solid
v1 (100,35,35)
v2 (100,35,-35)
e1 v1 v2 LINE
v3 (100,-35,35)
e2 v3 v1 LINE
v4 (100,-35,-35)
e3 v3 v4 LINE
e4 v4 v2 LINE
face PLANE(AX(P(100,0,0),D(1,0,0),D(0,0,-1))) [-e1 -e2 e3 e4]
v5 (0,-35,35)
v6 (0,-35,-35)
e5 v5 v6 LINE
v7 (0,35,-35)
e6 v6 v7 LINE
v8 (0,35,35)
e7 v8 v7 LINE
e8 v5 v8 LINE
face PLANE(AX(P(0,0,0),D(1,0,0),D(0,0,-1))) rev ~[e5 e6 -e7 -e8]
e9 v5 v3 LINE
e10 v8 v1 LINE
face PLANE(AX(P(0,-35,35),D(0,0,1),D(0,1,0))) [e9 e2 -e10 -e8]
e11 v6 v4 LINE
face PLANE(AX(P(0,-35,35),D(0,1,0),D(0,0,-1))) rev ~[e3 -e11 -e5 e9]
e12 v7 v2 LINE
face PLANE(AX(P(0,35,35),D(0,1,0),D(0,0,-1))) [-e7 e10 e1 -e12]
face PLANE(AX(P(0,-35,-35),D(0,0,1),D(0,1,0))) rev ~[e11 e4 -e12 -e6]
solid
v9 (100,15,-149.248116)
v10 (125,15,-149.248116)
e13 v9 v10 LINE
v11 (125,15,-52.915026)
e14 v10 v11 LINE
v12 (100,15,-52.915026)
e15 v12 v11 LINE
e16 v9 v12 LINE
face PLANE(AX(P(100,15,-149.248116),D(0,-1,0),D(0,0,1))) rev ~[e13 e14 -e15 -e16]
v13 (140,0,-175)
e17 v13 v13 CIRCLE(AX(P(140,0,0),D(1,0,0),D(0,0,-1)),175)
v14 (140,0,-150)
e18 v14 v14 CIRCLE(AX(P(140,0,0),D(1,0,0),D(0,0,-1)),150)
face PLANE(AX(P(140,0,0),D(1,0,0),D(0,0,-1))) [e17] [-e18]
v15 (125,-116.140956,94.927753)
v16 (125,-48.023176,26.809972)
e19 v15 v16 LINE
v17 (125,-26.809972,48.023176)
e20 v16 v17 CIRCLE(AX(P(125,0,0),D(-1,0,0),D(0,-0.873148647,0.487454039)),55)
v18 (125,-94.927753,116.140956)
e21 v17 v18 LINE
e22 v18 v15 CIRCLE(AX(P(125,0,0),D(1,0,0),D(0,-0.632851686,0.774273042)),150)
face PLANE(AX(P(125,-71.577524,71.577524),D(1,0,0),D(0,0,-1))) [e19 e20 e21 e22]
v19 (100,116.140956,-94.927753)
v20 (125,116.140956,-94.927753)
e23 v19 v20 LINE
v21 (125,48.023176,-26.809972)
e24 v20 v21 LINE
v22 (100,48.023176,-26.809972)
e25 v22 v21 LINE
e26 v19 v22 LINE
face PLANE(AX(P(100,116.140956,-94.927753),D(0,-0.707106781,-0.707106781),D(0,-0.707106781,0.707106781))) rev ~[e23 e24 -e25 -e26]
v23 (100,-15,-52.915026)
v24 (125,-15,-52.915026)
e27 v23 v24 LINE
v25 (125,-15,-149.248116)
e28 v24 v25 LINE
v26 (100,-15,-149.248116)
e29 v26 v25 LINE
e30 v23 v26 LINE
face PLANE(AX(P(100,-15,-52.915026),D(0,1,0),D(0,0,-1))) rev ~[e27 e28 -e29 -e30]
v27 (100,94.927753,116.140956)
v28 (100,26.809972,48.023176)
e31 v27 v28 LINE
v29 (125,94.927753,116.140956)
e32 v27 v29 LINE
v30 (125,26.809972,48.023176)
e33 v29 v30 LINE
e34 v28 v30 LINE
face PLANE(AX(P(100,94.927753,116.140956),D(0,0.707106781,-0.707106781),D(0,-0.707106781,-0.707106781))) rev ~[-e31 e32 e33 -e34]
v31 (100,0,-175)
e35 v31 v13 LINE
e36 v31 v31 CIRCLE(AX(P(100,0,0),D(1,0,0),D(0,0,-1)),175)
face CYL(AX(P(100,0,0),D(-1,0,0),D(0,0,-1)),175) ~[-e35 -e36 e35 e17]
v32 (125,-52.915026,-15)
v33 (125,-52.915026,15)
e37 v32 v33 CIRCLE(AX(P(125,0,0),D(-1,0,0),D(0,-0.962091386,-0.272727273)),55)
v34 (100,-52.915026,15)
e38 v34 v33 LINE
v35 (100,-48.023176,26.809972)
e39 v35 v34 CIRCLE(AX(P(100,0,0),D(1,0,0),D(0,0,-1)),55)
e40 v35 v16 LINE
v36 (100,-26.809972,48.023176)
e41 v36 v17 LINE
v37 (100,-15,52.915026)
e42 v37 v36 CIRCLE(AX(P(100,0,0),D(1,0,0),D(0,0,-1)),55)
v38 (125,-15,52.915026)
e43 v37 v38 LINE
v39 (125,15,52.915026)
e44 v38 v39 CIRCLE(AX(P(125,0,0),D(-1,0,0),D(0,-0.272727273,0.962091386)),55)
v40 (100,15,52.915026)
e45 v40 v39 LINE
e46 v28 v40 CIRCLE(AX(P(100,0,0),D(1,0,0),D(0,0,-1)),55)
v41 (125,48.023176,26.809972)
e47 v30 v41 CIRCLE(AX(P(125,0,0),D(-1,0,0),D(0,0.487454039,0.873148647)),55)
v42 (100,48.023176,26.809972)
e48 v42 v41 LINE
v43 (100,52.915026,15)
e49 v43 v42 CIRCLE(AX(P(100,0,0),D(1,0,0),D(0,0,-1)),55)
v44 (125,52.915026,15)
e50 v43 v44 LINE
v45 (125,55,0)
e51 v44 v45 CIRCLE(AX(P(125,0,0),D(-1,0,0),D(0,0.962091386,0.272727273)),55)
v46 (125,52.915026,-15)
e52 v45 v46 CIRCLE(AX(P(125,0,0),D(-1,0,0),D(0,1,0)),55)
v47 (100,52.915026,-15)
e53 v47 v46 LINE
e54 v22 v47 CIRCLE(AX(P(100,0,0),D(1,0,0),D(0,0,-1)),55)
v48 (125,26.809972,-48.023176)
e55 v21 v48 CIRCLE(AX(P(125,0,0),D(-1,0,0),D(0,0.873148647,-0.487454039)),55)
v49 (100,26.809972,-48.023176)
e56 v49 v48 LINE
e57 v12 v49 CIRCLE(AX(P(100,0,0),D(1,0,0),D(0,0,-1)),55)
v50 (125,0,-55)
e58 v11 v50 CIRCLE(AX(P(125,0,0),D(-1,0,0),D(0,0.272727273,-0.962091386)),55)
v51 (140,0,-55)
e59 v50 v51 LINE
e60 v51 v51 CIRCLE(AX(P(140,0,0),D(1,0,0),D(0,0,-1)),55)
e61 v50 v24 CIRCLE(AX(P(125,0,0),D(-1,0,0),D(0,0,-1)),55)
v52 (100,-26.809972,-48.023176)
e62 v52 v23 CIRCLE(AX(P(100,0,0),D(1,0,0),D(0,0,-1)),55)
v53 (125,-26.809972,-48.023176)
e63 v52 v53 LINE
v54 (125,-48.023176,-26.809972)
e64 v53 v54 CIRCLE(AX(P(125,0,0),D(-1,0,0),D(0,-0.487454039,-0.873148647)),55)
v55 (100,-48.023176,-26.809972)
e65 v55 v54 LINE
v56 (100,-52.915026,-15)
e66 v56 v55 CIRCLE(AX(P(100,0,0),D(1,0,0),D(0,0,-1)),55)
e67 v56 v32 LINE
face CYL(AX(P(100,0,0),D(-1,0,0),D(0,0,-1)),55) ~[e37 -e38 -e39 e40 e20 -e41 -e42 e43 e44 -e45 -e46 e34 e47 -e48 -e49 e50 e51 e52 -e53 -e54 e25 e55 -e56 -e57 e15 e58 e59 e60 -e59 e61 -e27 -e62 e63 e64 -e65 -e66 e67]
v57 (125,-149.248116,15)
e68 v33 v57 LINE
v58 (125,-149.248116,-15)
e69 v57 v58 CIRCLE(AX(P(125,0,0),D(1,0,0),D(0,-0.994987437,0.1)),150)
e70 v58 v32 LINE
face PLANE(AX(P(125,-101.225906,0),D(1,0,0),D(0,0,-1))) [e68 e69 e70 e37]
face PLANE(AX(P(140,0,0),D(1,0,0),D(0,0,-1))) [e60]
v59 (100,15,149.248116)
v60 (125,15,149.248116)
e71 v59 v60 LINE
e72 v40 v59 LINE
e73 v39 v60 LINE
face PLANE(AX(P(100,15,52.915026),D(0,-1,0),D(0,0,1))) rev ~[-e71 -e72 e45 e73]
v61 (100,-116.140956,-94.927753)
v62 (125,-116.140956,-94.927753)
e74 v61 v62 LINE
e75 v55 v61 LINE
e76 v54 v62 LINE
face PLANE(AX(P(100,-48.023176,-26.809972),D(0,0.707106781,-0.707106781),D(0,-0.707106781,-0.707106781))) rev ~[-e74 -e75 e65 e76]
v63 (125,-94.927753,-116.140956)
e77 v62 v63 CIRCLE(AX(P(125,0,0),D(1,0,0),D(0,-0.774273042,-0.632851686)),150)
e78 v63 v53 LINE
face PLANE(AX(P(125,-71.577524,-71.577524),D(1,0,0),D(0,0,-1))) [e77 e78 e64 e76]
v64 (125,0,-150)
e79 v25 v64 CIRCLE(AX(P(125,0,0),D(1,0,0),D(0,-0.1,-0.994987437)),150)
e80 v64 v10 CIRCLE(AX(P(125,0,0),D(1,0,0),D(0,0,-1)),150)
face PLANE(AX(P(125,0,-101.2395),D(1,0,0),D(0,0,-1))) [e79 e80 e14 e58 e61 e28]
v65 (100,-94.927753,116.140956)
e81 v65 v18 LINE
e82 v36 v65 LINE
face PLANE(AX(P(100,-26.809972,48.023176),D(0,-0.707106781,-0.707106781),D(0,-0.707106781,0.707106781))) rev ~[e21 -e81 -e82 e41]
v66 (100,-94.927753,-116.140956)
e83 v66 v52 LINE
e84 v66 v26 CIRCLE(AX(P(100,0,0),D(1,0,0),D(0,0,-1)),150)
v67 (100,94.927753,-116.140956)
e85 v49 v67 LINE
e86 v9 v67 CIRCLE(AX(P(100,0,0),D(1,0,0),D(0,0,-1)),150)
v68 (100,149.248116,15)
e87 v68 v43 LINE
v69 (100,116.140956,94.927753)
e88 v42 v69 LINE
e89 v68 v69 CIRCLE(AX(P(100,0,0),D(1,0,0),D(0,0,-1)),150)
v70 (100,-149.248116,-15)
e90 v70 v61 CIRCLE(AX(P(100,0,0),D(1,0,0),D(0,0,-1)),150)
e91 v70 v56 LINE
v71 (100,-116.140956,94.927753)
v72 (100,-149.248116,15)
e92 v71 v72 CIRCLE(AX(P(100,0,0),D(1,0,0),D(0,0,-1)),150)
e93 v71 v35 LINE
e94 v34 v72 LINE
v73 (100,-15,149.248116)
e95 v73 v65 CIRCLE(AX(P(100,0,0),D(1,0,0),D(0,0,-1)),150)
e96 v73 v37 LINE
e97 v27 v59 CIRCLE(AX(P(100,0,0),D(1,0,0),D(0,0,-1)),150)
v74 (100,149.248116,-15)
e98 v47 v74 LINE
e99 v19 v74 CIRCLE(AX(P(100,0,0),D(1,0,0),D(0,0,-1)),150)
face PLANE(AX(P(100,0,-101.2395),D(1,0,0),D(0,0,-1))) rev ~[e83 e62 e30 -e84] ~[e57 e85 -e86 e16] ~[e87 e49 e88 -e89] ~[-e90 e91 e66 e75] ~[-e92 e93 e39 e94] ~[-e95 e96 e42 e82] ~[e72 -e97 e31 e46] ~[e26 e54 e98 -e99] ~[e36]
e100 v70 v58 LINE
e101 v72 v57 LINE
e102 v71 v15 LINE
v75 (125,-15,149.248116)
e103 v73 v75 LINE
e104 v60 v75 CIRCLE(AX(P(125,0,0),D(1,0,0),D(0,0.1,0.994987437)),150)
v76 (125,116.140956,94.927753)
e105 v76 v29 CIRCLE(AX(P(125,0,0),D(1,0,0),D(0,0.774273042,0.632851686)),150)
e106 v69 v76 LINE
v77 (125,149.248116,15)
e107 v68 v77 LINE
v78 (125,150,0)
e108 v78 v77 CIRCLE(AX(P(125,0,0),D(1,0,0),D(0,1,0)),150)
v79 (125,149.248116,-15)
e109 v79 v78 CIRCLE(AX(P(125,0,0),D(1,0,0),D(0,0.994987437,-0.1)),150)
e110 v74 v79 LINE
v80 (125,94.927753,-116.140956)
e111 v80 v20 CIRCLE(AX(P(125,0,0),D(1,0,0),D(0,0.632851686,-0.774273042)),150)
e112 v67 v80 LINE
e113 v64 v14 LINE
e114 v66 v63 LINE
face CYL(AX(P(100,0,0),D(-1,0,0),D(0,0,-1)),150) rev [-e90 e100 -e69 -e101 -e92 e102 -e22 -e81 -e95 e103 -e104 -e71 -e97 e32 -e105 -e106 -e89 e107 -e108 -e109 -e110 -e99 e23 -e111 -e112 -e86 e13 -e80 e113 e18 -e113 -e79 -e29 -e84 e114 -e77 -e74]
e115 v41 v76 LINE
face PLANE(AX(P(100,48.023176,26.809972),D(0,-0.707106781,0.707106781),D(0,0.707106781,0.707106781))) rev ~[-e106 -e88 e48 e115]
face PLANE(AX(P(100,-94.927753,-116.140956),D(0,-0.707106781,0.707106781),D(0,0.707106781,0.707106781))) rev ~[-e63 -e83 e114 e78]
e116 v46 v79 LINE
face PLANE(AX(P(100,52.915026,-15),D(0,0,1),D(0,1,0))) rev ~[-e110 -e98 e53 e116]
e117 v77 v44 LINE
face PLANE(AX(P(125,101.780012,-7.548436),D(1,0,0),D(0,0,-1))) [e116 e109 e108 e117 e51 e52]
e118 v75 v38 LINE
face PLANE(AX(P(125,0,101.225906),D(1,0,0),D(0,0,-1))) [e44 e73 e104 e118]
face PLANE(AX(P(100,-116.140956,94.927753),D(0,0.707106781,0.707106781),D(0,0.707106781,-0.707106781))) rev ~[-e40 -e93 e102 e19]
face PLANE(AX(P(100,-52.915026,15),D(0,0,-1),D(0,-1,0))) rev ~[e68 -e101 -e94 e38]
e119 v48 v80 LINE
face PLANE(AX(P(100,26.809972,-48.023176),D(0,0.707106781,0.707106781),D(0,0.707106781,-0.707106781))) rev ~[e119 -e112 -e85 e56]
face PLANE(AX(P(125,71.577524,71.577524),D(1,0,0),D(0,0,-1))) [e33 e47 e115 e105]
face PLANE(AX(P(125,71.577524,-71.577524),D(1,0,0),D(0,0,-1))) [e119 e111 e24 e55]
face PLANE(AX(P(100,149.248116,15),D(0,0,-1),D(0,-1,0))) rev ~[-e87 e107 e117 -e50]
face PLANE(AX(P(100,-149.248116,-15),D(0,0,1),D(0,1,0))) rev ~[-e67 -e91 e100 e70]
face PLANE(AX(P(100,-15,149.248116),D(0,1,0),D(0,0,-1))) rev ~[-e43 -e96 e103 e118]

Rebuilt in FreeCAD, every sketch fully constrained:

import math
import FreeCAD as App
import Part
import Sketcher
from FreeCAD import Vector

doc = App.newDocument("Part")
params = doc.addObject("Spreadsheet::Sheet", "Params")
for row, (alias, value) in enumerate([
    ("sketch1_width", "70 mm"),
    ("pad1_length", "100 mm"),
    ("sketch2_diameter", "350 mm"),
    ("sketch2_diameter2", "300 mm"),
    ("pad2_length", "40 mm"),
    ("sketch3_diameter", "110 mm"),
    ("pad3_length", "40 mm"),
    ("sketch4_radius", "55 mm"),
    ("sketch4_radius2", "150 mm"),
    ("pad4_length", "25 mm"),
], start=1):
    params.set(f"A{row}", alias)
    params.set(f"B{row}", "=" + value)
    params.setAlias(f"B{row}", alias)

body = doc.addObject("PartDesign::Body", "Body")

# Sketch on YZ plane
sketch1 = doc.addObject("Sketcher::SketchObject", "Sketch")
body.addObject(sketch1)
sketch1.AttachmentSupport = (doc.YZ_Plane, [""])
sketch1.MapMode = "FlatFace"
sketch1.addGeometry([
    Part.LineSegment(Vector(35, 35, 0), Vector(-35, 35, 0)),
    Part.LineSegment(Vector(-35, 35, 0), Vector(-35, -35, 0)),
    Part.LineSegment(Vector(-35, -35, 0), Vector(35, -35, 0)),
    Part.LineSegment(Vector(35, -35, 0), Vector(35, 35, 0)),
], False)
sketch1.addConstraint([
    Sketcher.Constraint("Coincident", 0, 2, 1, 1),
    Sketcher.Constraint("Coincident", 1, 2, 2, 1),
    Sketcher.Constraint("Coincident", 2, 2, 3, 1),
    Sketcher.Constraint("Coincident", 3, 2, 0, 1),
    Sketcher.Constraint("Horizontal", 0),
    Sketcher.Constraint("Vertical", 1),
    Sketcher.Constraint("Horizontal", 2),
    Sketcher.Constraint("Vertical", 3),
    Sketcher.Constraint("Symmetric", 0, 2, 2, 2, -1, 1),
    Sketcher.Constraint("Equal", 2, 1),
    Sketcher.Constraint("DistanceX", 0, 2, 0, 1, 70.0),
])
sketch1.setExpression("Constraints[10]", "Params.sketch1_width")
pad1 = doc.addObject("PartDesign::Pad", "Pad")
body.addObject(pad1)
pad1.Profile = sketch1
pad1.setExpression("Length", "Params.pad1_length")
body2 = doc.addObject("PartDesign::Body", "Body001")

# Sketch on YZ plane
sketch2 = doc.addObject("Sketcher::SketchObject", "Sketch001")
body2.addObject(sketch2)
sketch2.AttachmentSupport = (doc.getObject("YZ_Plane001"), [""])
sketch2.MapMode = "FlatFace"
sketch2.AttachmentOffset = App.Placement(Vector(0, 0, 100), App.Rotation())
sketch2.addGeometry([
    Part.Circle(Vector(0, 0, 0), Vector(0, 0, 1), 175),
    Part.Circle(Vector(0, 0, 0), Vector(0, 0, 1), 150),
], False)
sketch2.addConstraint([
    Sketcher.Constraint("Coincident", 0, 3, -1, 1),
    Sketcher.Constraint("Coincident", 1, 3, -1, 1),
    Sketcher.Constraint("Diameter", 0, 350.0),
    Sketcher.Constraint("Diameter", 1, 300.0),
])
sketch2.setExpression("Constraints[2]", "Params.sketch2_diameter")
sketch2.setExpression("Constraints[3]", "Params.sketch2_diameter2")
pad2 = doc.addObject("PartDesign::Pad", "Pad001")
body2.addObject(pad2)
pad2.Profile = sketch2
pad2.setExpression("Length", "Params.pad2_length")
body3 = doc.addObject("PartDesign::Body", "Body002")

# Sketch on YZ plane
sketch3 = doc.addObject("Sketcher::SketchObject", "Sketch002")
body3.addObject(sketch3)
sketch3.AttachmentSupport = (doc.getObject("YZ_Plane002"), [""])
sketch3.MapMode = "FlatFace"
sketch3.AttachmentOffset = App.Placement(Vector(0, 0, 100), App.Rotation())
sketch3.addGeometry(Part.Circle(Vector(0, 0, 0), Vector(0, 0, 1), 55), False)
sketch3.addConstraint([
    Sketcher.Constraint("Coincident", 0, 3, -1, 1),
    Sketcher.Constraint("Diameter", 0, 110.0),
])
sketch3.setExpression("Constraints[1]", "Params.sketch3_diameter")
pad3 = doc.addObject("PartDesign::Pad", "Pad002")
body3.addObject(pad3)
pad3.Profile = sketch3
pad3.setExpression("Length", "Params.pad3_length")
body2.AllowCompound = True
doc.recompute()

boolean = doc.addObject("PartDesign::Boolean", "Boolean")
body2.addObject(boolean)
boolean.Type = "Fuse"
boolean.addObjects([body3])

# Sketch on YZ plane
sketch4 = doc.addObject("Sketcher::SketchObject", "Sketch003")
body2.addObject(sketch4)
sketch4.AttachmentSupport = (doc.getObject("YZ_Plane001"), [""])
sketch4.MapMode = "FlatFace"
sketch4.AttachmentOffset = App.Placement(Vector(0, 0, 100), App.Rotation())
sketch4.addGeometry([
    Part.ArcOfCircle(Part.Circle(Vector(0, 0, 0), Vector(0, 0, 1), 55), math.radians(29), math.radians(61)),  # 0
    Part.LineSegment(Vector(48, 27, 0), Vector(116, 95, 0)),  # 1
    Part.ArcOfCircle(Part.Circle(Vector(0, 0, 0), Vector(0, 0, 1), 150), math.radians(39.26), math.radians(50.74)),  # 2
    Part.LineSegment(Vector(95, 116, 0), Vector(27, 48, 0)),  # 3
    Part.ArcOfCircle(Part.Circle(Vector(0, 0, 0), Vector(0, 0, 1), 55), math.radians(-15.83), math.radians(0)),  # 4
    Part.LineSegment(Vector(53, -15, 0), Vector(149, -15, 0)),  # 5
    Part.ArcOfCircle(Part.Circle(Vector(0, 0, 0), Vector(0, 0, 1), 150), math.radians(-5.74), math.radians(0)),  # 6
    Part.ArcOfCircle(Part.Circle(Vector(0, 0, 0), Vector(0, 0, 1), 150), math.radians(0), math.radians(5.74)),  # 7
    Part.LineSegment(Vector(149, 15, 0), Vector(53, 15, 0)),  # 8
    Part.ArcOfCircle(Part.Circle(Vector(0, 0, 0), Vector(0, 0, 1), 55), math.radians(0), math.radians(15.83)),  # 9
    Part.LineSegment(Vector(116, -95, 0), Vector(48, -27, 0)),  # 10
    Part.ArcOfCircle(Part.Circle(Vector(0, 0, 0), Vector(0, 0, 1), 55), math.radians(-61), math.radians(-29)),  # 11
    Part.LineSegment(Vector(27, -48, 0), Vector(95, -116, 0)),  # 12
    Part.ArcOfCircle(Part.Circle(Vector(0, 0, 0), Vector(0, 0, 1), 150), math.radians(-50.74), math.radians(-39.26)),  # 13
    Part.LineSegment(Vector(15, -149, 0), Vector(15, -53, 0)),  # 14
    Part.ArcOfCircle(Part.Circle(Vector(0, 0, 0), Vector(0, 0, 1), 55), math.radians(-90), math.radians(-74.17)),  # 15
    Part.ArcOfCircle(Part.Circle(Vector(0, 0, 0), Vector(0, 0, 1), 55), math.radians(-105.83), math.radians(-90)),  # 16
    Part.LineSegment(Vector(-15, -53, 0), Vector(-15, -149, 0)),  # 17
    Part.ArcOfCircle(Part.Circle(Vector(0, 0, 0), Vector(0, 0, 1), 150), math.radians(-95.74), math.radians(-90)),  # 18
    Part.ArcOfCircle(Part.Circle(Vector(0, 0, 0), Vector(0, 0, 1), 150), math.radians(-90), math.radians(-84.26)),  # 19
    Part.LineSegment(Vector(-95, -116, 0), Vector(-27, -48, 0)),  # 20
    Part.ArcOfCircle(Part.Circle(Vector(0, 0, 0), Vector(0, 0, 1), 55), math.radians(-151), math.radians(-119)),  # 21
    Part.LineSegment(Vector(-48, -27, 0), Vector(-116, -95, 0)),  # 22
    Part.ArcOfCircle(Part.Circle(Vector(0, 0, 0), Vector(0, 0, 1), 150), math.radians(-140.74), math.radians(-129.26)),  # 23
    Part.ArcOfCircle(Part.Circle(Vector(0, 0, 0), Vector(0, 0, 1), 55), math.radians(164), math.radians(196)),  # 24
    Part.LineSegment(Vector(-53, 15, 0), Vector(-149, 15, 0)),  # 25
    Part.ArcOfCircle(Part.Circle(Vector(0, 0, 0), Vector(0, 0, 1), 150), math.radians(174.26), math.radians(185.74)),  # 26
    Part.LineSegment(Vector(-149, -15, 0), Vector(-53, -15, 0)),  # 27
    Part.ArcOfCircle(Part.Circle(Vector(0, 0, 0), Vector(0, 0, 1), 55), math.radians(119), math.radians(151)),  # 28
    Part.LineSegment(Vector(-27, 48, 0), Vector(-95, 116, 0)),  # 29
    Part.ArcOfCircle(Part.Circle(Vector(0, 0, 0), Vector(0, 0, 1), 150), math.radians(129.26), math.radians(140.74)),  # 30
    Part.LineSegment(Vector(-116, 95, 0), Vector(-48, 27, 0)),  # 31
    Part.ArcOfCircle(Part.Circle(Vector(0, 0, 0), Vector(0, 0, 1), 55), math.radians(74), math.radians(106)),  # 32
    Part.LineSegment(Vector(15, 53, 0), Vector(15, 149, 0)),  # 33
    Part.ArcOfCircle(Part.Circle(Vector(0, 0, 0), Vector(0, 0, 1), 150), math.radians(84.26), math.radians(95.74)),  # 34
    Part.LineSegment(Vector(-15, 149, 0), Vector(-15, 53, 0)),  # 35
], False)
sketch4.addConstraint([
    Sketcher.Constraint("Coincident", 0, 1, 1, 1),
    Sketcher.Constraint("Coincident", 1, 2, 2, 1),
    Sketcher.Constraint("Coincident", 2, 2, 3, 1),
    Sketcher.Constraint("Coincident", 3, 2, 0, 2),
    Sketcher.Constraint("Coincident", 4, 1, 5, 1),
    Sketcher.Constraint("Coincident", 5, 2, 6, 1),
    Sketcher.Constraint("Tangent", 6, 2, 7, 1),
    Sketcher.Constraint("Coincident", 7, 2, 8, 1),
    Sketcher.Constraint("Coincident", 8, 2, 9, 2),
    Sketcher.Constraint("Tangent", 9, 1, 4, 2),
    Sketcher.Constraint("Coincident", 10, 2, 11, 2),
    Sketcher.Constraint("Coincident", 11, 1, 12, 1),
    Sketcher.Constraint("Coincident", 12, 2, 13, 1),
    Sketcher.Constraint("Coincident", 13, 2, 10, 1),
    Sketcher.Constraint("Coincident", 14, 2, 15, 2),
    Sketcher.Constraint("Tangent", 15, 1, 16, 2),
    Sketcher.Constraint("Coincident", 16, 1, 17, 1),
    Sketcher.Constraint("Coincident", 17, 2, 18, 1),
    Sketcher.Constraint("Tangent", 18, 2, 19, 1),
    Sketcher.Constraint("Coincident", 19, 2, 14, 1),
    Sketcher.Constraint("Coincident", 20, 2, 21, 2),
    Sketcher.Constraint("Coincident", 21, 1, 22, 1),
    Sketcher.Constraint("Coincident", 22, 2, 23, 1),
    Sketcher.Constraint("Coincident", 23, 2, 20, 1),
    Sketcher.Constraint("Coincident", 24, 1, 25, 1),
    Sketcher.Constraint("Coincident", 25, 2, 26, 1),
    Sketcher.Constraint("Coincident", 26, 2, 27, 1),
    Sketcher.Constraint("Coincident", 27, 2, 24, 2),
    Sketcher.Constraint("Coincident", 28, 1, 29, 1),
    Sketcher.Constraint("Coincident", 29, 2, 30, 1),
    Sketcher.Constraint("Coincident", 30, 2, 31, 1),
    Sketcher.Constraint("Coincident", 31, 2, 28, 2),
    Sketcher.Constraint("Coincident", 32, 1, 33, 1),
    Sketcher.Constraint("Coincident", 33, 2, 34, 1),
    Sketcher.Constraint("Coincident", 34, 2, 35, 1),
    Sketcher.Constraint("Coincident", 35, 2, 32, 2),
    Sketcher.Constraint("Horizontal", 5),
    Sketcher.Constraint("Horizontal", 8),
    Sketcher.Constraint("Vertical", 14),
    Sketcher.Constraint("Vertical", 17),
    Sketcher.Constraint("Horizontal", 25),
    Sketcher.Constraint("Horizontal", 27),
    Sketcher.Constraint("Vertical", 33),
    Sketcher.Constraint("Vertical", 35),
    Sketcher.Constraint("Coincident", 0, 3, -1, 1),
    Sketcher.Constraint("Coincident", 2, 3, -1, 1),
    Sketcher.Constraint("Coincident", 4, 3, -1, 1),
    Sketcher.Constraint("Coincident", 6, 3, -1, 1),
    Sketcher.Constraint("Coincident", 11, 3, -1, 1),
    Sketcher.Constraint("Coincident", 13, 3, -1, 1),
    Sketcher.Constraint("Coincident", 15, 3, -1, 1),
    Sketcher.Constraint("Coincident", 18, 3, -1, 1),
    Sketcher.Constraint("Coincident", 21, 3, -1, 1),
    Sketcher.Constraint("Coincident", 23, 3, -1, 1),
    Sketcher.Constraint("Coincident", 24, 3, -1, 1),
    Sketcher.Constraint("Coincident", 26, 3, -1, 1),
    Sketcher.Constraint("Coincident", 28, 3, -1, 1),
    Sketcher.Constraint("Coincident", 30, 3, -1, 1),
    Sketcher.Constraint("Coincident", 32, 3, -1, 1),
    Sketcher.Constraint("Coincident", 34, 3, -1, 1),
    Sketcher.Constraint("Equal", 0, 4),
    Sketcher.Constraint("Equal", 2, 6),
    Sketcher.Constraint("Equal", 6, 7),
    Sketcher.Constraint("Equal", 4, 9),
    Sketcher.Constraint("Equal", 9, 11),
    Sketcher.Constraint("Equal", 7, 13),
    Sketcher.Constraint("Equal", 11, 15),
    Sketcher.Constraint("Equal", 15, 16),
    Sketcher.Constraint("Equal", 13, 18),
    Sketcher.Constraint("Equal", 18, 19),
    Sketcher.Constraint("Equal", 16, 21),
    Sketcher.Constraint("Equal", 19, 23),
    Sketcher.Constraint("Equal", 21, 24),
    Sketcher.Constraint("Equal", 23, 26),
    Sketcher.Constraint("Equal", 24, 28),
    Sketcher.Constraint("Equal", 26, 30),
    Sketcher.Constraint("Equal", 28, 32),
    Sketcher.Constraint("Equal", 30, 34),
    Sketcher.Constraint("PointOnObject", 6, 2, -1),
    Sketcher.Constraint("PointOnObject", 9, 1, -1),
    Sketcher.Constraint("PointOnObject", 15, 1, -2),
    Sketcher.Constraint("PointOnObject", 18, 2, -2),
    Sketcher.Constraint("Parallel", 1, 3),
    Sketcher.Constraint("Perpendicular", 3, 10),
    Sketcher.Constraint("Parallel", 10, 12),
    Sketcher.Constraint("Perpendicular", 12, 20),
    Sketcher.Constraint("Parallel", 20, 22),
    Sketcher.Constraint("Perpendicular", 22, 29),
    Sketcher.Constraint("Parallel", 29, 31),
    Sketcher.Constraint("Horizontal", 14, 2, 16, 1),
    Sketcher.Constraint("Horizontal", 11, 1, 20, 2),
    Sketcher.Constraint("Horizontal", 10, 2, 21, 1),
    Sketcher.Constraint("Horizontal", 13, 2, 22, 2),
    Sketcher.Constraint("Horizontal", 8, 2, 24, 1),
    Sketcher.Constraint("Horizontal", 5, 2, 26, 2),
    Sketcher.Constraint("Horizontal", 3, 2, 28, 1),
    Sketcher.Constraint("Horizontal", 1, 2, 30, 2),
    Sketcher.Constraint("Horizontal", 33, 2, 34, 2),
    Sketcher.Constraint("Vertical", 5, 2, 7, 2),
    Sketcher.Constraint("Vertical", 0, 1, 10, 2),
    Sketcher.Constraint("Vertical", 3, 2, 11, 1),
    Sketcher.Constraint("Vertical", 19, 2, 32, 1),
    Sketcher.Constraint("Equal", 27, 14),
    Sketcher.Constraint("Equal", 1, 3),
    Sketcher.Constraint("Radius", 0, 55.0),
    Sketcher.Constraint("Radius", 2, 150.0),
    Sketcher.Constraint("DistanceY", 4, 1, -1, 1, 15.0),
    Sketcher.Constraint("Distance", 1, 96.333089),
])
sketch4.setExpression("Constraints[104]", "Params.sketch4_radius")
sketch4.setExpression("Constraints[105]", "Params.sketch4_radius2")
pad4 = doc.addObject("PartDesign::Pad", "Pad003")
body2.addObject(pad4)
pad4.Profile = sketch4
pad4.setExpression("Length", "Params.pad4_length")

doc.recompute()
